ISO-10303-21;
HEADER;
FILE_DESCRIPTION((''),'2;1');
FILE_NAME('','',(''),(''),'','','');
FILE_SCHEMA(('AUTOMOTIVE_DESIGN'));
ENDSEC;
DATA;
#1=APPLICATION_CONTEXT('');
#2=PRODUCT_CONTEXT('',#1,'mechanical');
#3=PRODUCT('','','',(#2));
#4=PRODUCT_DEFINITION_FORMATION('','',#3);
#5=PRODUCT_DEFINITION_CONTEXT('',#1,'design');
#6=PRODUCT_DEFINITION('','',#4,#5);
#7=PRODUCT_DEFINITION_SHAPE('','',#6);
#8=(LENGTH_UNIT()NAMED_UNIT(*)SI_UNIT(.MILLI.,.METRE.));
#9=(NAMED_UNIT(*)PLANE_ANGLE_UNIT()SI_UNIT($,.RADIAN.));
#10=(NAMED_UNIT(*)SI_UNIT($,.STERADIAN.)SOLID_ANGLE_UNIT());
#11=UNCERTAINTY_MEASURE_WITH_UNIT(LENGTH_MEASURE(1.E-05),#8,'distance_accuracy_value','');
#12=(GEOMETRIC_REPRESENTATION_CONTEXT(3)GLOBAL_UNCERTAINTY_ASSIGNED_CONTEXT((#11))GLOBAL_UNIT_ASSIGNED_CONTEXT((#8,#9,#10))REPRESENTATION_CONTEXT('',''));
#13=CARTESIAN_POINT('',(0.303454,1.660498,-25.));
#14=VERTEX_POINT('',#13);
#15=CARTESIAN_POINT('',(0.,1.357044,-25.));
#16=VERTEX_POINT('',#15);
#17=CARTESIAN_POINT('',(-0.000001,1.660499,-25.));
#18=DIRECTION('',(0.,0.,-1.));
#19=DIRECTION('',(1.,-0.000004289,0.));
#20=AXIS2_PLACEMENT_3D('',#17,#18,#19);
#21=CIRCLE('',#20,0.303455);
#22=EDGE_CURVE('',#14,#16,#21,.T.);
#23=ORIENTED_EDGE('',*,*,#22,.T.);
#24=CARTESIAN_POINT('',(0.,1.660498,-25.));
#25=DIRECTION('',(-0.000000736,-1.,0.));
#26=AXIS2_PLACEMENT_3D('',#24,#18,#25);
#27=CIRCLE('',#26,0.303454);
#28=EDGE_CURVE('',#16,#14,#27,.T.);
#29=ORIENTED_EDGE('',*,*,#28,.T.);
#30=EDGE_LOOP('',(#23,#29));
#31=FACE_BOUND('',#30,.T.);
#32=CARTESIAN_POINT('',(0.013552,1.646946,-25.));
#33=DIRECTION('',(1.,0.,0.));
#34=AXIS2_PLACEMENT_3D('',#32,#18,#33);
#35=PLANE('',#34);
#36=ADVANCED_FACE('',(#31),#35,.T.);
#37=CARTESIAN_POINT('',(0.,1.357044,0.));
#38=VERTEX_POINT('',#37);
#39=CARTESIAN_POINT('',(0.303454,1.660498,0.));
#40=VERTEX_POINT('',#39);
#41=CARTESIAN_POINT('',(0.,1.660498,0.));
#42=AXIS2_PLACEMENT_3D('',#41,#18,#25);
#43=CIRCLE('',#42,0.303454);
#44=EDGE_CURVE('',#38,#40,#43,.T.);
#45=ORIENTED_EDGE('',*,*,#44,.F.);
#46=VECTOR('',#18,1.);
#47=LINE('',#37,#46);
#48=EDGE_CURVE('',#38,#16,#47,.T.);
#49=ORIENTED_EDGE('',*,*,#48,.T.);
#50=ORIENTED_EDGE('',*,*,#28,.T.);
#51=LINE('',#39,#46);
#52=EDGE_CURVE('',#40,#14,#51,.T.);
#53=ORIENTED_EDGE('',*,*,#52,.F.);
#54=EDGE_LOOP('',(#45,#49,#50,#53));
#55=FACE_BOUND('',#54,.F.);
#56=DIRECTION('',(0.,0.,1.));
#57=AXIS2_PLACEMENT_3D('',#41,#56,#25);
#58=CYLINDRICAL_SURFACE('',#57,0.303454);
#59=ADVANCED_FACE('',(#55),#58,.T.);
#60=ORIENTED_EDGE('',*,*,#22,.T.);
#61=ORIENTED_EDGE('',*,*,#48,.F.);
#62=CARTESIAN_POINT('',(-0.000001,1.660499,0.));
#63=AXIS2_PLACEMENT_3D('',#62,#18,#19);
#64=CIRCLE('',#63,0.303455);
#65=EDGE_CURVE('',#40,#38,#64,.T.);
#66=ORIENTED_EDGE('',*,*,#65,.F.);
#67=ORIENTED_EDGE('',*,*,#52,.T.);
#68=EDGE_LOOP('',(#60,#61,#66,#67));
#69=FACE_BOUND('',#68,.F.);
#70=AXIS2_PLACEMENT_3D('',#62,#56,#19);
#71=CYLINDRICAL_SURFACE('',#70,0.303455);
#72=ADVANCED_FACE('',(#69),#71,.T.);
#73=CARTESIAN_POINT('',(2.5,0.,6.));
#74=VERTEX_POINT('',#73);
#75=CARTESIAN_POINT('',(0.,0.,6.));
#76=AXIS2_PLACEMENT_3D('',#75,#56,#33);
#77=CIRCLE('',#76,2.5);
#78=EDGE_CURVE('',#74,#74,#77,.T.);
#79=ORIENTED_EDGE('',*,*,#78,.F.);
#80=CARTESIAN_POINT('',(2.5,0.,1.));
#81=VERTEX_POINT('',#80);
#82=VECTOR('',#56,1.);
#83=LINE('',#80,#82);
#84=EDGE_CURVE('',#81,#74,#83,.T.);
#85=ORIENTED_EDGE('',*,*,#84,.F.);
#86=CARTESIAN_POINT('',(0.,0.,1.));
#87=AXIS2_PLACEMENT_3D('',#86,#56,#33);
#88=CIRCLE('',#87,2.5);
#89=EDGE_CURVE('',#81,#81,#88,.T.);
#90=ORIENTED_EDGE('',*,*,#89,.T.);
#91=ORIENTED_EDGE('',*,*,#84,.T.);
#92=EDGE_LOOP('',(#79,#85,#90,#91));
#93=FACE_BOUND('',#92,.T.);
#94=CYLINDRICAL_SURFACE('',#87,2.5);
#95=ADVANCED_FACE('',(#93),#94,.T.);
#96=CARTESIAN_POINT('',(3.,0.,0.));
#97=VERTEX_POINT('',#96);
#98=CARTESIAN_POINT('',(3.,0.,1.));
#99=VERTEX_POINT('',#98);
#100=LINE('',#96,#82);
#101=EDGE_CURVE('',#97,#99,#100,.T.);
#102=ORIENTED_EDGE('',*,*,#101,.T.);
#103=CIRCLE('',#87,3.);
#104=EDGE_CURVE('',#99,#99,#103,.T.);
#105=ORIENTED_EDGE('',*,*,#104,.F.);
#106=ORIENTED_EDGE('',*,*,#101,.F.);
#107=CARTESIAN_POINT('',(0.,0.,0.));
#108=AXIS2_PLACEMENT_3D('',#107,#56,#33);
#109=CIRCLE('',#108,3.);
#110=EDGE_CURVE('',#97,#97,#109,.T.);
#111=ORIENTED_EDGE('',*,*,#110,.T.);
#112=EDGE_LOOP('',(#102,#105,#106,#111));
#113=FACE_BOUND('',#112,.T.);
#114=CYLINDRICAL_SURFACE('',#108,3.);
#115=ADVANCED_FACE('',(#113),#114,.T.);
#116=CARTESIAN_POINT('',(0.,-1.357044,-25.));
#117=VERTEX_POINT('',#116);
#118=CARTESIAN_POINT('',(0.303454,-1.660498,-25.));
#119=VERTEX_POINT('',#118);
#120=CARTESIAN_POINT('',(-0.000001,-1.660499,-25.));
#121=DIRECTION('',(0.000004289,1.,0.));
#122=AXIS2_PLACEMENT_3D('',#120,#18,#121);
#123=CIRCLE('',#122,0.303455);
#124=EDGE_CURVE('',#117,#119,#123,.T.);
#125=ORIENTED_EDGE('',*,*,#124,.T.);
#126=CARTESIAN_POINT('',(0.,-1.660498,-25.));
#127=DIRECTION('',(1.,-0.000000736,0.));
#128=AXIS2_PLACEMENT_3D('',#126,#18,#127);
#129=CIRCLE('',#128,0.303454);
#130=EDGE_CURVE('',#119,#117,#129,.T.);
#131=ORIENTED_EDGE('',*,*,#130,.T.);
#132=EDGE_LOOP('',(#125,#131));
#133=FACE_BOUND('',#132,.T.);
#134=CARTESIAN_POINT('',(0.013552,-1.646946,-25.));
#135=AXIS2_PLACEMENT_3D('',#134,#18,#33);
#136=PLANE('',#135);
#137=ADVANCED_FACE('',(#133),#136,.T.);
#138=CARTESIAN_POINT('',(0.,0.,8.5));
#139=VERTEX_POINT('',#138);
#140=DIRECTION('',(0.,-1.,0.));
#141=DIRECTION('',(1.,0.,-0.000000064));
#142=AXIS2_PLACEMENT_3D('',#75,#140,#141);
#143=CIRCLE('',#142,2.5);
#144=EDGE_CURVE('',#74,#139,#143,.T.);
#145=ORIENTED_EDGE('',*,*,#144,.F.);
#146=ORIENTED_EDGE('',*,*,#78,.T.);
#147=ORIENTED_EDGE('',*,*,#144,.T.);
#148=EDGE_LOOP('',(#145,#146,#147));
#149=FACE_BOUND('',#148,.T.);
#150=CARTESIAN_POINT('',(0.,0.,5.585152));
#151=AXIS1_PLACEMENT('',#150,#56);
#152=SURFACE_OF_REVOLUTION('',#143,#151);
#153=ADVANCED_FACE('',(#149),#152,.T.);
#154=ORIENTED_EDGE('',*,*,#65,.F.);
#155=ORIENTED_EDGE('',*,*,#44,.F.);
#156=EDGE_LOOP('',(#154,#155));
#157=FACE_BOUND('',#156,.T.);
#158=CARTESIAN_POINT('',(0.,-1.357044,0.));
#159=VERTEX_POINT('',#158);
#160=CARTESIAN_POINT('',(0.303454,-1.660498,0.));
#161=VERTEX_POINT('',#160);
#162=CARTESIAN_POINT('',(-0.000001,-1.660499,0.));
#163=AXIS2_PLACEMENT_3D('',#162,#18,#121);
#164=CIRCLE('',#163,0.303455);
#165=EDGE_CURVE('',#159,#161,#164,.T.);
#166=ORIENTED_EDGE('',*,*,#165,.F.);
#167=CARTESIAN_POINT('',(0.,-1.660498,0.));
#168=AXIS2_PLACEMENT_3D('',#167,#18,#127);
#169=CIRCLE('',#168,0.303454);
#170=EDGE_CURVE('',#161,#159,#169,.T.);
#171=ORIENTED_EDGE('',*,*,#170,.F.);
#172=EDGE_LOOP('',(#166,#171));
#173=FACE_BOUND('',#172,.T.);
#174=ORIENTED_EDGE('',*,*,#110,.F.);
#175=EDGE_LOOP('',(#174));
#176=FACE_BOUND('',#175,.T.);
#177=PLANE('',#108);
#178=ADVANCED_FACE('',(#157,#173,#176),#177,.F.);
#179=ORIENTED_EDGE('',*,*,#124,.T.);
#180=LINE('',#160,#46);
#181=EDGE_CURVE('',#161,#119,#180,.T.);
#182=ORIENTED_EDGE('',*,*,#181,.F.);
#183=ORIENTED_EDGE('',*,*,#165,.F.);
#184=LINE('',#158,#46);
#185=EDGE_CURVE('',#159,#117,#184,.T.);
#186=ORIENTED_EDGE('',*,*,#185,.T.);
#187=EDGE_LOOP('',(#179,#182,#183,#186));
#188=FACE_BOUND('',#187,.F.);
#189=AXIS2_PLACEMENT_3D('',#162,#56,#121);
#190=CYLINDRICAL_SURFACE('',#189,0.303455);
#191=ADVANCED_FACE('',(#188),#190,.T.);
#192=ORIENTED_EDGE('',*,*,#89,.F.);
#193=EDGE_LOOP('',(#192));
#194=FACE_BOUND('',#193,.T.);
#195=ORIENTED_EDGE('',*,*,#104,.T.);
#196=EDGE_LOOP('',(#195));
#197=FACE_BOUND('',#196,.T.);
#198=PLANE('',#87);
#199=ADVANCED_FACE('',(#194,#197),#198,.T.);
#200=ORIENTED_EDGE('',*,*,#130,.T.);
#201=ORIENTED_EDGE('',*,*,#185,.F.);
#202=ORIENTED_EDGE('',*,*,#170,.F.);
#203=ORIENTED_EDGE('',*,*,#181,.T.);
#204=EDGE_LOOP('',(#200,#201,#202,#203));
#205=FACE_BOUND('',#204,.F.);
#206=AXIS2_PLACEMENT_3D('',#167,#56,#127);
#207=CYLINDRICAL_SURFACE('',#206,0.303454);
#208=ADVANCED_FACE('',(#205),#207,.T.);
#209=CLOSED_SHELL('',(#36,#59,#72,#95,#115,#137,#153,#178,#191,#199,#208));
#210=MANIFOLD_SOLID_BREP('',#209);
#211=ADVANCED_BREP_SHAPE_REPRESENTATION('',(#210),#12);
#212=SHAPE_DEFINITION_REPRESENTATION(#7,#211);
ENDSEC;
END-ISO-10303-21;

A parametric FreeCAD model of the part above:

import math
import FreeCAD as App
import Part
import Sketcher
from FreeCAD import Vector

doc = App.newDocument("Part")
body = doc.addObject("PartDesign::Body", "Body")

# Sketch on XZ plane
sketch1 = body.newObject("Sketcher::SketchObject", "Sketch")
sketch1.AttachmentSupport = (doc.getObject("XZ_Plane"), [""])
sketch1.MapMode = "FlatFace"
sketch1.addGeometry([
    Part.LineSegment(Vector(0, 8.5, 0), Vector(0, 0, 0)),  # 0
    Part.LineSegment(Vector(0, 0, 0), Vector(3, 0, 0)),  # 1
    Part.LineSegment(Vector(3, 0, 0), Vector(3, 1, 0)),  # 2
    Part.LineSegment(Vector(3, 1, 0), Vector(2.5, 1, 0)),  # 3
    Part.LineSegment(Vector(2.5, 1, 0), Vector(2.5, 6, 0)),  # 4
    Part.ArcOfCircle(Part.Circle(Vector(0, 6, 0), Vector(0, 0, 1), 2.5), math.radians(0), math.radians(90)),  # 5
], False)
sketch1.addConstraint([
    Sketcher.Constraint("Coincident", 0, 2, 1, 1),
    Sketcher.Constraint("Coincident", 1, 2, 2, 1),
    Sketcher.Constraint("Coincident", 2, 2, 3, 1),
    Sketcher.Constraint("Coincident", 3, 2, 4, 1),
    Sketcher.Constraint("Tangent", 4, 2, 5, 1),
    Sketcher.Constraint("Coincident", 5, 2, 0, 1),
    Sketcher.Constraint("Vertical", 0),
    Sketcher.Constraint("Horizontal", 1),
    Sketcher.Constraint("Vertical", 2),
    Sketcher.Constraint("Horizontal", 3),
    Sketcher.Constraint("Vertical", 4),
    Sketcher.Constraint("Coincident", 0, 2, -1, 1),
    Sketcher.Constraint("PointOnObject", 5, 3, -2),
    Sketcher.Constraint("Radius", 5, 2.5),
    Sketcher.Constraint("DistanceX", 1, 1, 1, 2, 3.0),
    Sketcher.Constraint("DistanceY", 2, 1, 2, 2, 1.0),
    Sketcher.Constraint("DistanceY", 4, 1, 4, 2, 5.0),
])
revolution = body.newObject("PartDesign::Revolution", "Revolution")
revolution.Profile = sketch1
revolution.ReferenceAxis = (sketch1, ["V_Axis"])
revolution.Angle = 360

# Sketch on XY plane
sketch2 = body.newObject("Sketcher::SketchObject", "Sketch001")
sketch2.AttachmentSupport = (doc.getObject("XY_Plane"), [""])
sketch2.MapMode = "FlatFace"
sketch2.addGeometry([
    Part.ArcOfCircle(Part.Circle(Vector(0, 1.66, 0), Vector(0, 0, 1), 0.3), math.radians(0), math.radians(270)),
    Part.ArcOfCircle(Part.Circle(Vector(0, 1.66, 0), Vector(0, 0, 1), 0.3), math.radians(-90), math.radians(0)),
    Part.ArcOfCircle(Part.Circle(Vector(0, -1.66, 0), Vector(0, 0, 1), 0.3), math.radians(90), math.radians(360)),
    Part.ArcOfCircle(Part.Circle(Vector(0, -1.66, 0), Vector(0, 0, 1), 0.3), math.radians(0), math.radians(90)),
], False)
sketch2.addConstraint([
    Sketcher.Constraint("Coincident", 0, 1, 1, 2),
    Sketcher.Constraint("Coincident", 1, 1, 0, 2),
    Sketcher.Constraint("Coincident", 2, 1, 3, 2),
    Sketcher.Constraint("Coincident", 3, 1, 2, 2),
    Sketcher.Constraint("Equal", 0, 1),
    Sketcher.Constraint("Equal", 1, 2),
    Sketcher.Constraint("Equal", 2, 3),
    Sketcher.Constraint("Symmetric", 0, 3, 2, 3, -1, 1),
    Sketcher.Constraint("Symmetric", 0, 1, 3, 1, -1),
    Sketcher.Constraint("PointOnObject", 1, 1, -2),
    Sketcher.Constraint("PointOnObject", 2, 1, -2),
    Sketcher.Constraint("Horizontal", 1, 3, 0, 1),
    Sketcher.Constraint("Radius", 0, 0.303454),
    Sketcher.Constraint("DistanceY", 3, 3, 1, 3, 3.320999),
])
pad1 = body.newObject("PartDesign::Pad", "Pad")
pad1.Profile = sketch2
pad1.Length = 25
pad1.Reversed = True

doc.recompute()
